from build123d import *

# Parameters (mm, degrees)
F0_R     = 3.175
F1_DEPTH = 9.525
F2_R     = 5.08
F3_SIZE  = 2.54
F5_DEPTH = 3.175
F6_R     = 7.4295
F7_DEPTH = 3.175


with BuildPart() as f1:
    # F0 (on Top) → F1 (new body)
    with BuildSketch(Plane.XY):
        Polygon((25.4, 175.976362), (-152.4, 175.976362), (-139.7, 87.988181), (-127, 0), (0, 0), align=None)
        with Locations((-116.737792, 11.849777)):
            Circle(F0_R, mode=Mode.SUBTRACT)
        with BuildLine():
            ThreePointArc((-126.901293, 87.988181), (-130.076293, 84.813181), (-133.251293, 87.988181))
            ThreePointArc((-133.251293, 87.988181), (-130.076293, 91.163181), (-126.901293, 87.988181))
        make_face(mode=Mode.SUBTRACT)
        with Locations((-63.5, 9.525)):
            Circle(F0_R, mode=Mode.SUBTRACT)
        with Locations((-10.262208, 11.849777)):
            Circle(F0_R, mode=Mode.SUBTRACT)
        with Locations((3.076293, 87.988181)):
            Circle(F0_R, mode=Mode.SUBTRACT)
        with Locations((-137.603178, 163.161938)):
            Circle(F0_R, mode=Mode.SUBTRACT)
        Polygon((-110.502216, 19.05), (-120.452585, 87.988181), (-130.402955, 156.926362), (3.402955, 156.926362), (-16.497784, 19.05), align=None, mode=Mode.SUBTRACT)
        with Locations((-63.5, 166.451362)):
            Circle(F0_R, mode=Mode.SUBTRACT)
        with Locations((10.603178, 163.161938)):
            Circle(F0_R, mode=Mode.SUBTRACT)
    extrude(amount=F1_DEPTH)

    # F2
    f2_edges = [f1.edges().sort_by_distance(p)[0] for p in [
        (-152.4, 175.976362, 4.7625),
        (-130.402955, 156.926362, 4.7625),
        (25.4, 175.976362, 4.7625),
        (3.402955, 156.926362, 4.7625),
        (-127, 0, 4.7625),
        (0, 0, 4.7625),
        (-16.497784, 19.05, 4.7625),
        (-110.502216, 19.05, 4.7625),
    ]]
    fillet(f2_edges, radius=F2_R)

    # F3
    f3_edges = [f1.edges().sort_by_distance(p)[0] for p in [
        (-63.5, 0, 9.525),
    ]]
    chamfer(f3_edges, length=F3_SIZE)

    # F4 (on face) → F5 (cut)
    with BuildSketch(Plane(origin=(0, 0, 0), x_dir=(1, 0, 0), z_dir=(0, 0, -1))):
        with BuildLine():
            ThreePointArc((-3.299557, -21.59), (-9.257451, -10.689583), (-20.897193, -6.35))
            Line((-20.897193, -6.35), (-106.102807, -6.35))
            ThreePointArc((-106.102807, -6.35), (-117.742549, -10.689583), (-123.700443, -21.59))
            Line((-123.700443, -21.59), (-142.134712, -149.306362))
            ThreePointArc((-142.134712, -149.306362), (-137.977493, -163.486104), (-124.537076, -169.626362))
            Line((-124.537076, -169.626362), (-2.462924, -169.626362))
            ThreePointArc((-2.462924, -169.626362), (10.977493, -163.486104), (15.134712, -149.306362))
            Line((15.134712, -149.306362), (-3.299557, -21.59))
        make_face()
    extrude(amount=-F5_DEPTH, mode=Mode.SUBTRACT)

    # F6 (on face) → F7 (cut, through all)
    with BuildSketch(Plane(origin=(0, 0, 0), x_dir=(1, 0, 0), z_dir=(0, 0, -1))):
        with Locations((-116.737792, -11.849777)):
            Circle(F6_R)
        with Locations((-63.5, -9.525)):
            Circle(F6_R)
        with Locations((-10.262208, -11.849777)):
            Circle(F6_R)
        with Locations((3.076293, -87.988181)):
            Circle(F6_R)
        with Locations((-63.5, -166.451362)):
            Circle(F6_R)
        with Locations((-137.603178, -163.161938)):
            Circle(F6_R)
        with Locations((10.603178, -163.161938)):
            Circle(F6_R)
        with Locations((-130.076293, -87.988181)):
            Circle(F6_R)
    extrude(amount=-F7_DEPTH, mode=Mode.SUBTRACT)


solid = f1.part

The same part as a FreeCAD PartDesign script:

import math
import FreeCAD as App
import Part
import Sketcher
from FreeCAD import Vector
Q = App.Units.Quantity


def edges_at(feature, points):
    """Names of the edges that pass closest to the given points."""
    edges = feature.Shape.Edges
    near = lambda p: min(range(len(edges)), key=lambda i: edges[i].distToShape(Part.Vertex(*p))[0])
    return sorted({f"Edge{near(p) + 1}" for p in points})


def add_polygon(sketch, points):
    """Adds a closed chain of lines whose ends are joined by coincident constraints."""
    first, n = sketch.GeometryCount, len(points)
    for a, b in zip(points, points[1:] + points[:1]):
        sketch.addGeometry(Part.LineSegment(App.Vector(*a, 0), App.Vector(*b, 0)), False)
    for i in range(n):
        sketch.addConstraint(Sketcher.Constraint("Coincident", first + i, 2, first + (i + 1) % n, 1))

doc = App.newDocument("Part")
body = doc.addObject("PartDesign::Body", "Body")

sketch1 = body.newObject("Sketcher::SketchObject", "Sketch")
sketch1.AttachmentSupport = (doc.getObject("XY_Plane"), [""])
sketch1.MapMode = "FlatFace"
add_polygon(sketch1, [(25.4, 176), (-152.4, 176), (-127, 0), (0, 0)])
sketch1.addGeometry(Part.Circle(Vector(-116.7, 11.8, 0), Vector(0, 0, 1), 3.2), False)
sketch1.addGeometry(Part.Circle(Vector(-63.5, 9.5, 0), Vector(0, 0, 1), 3.2), False)
sketch1.addGeometry(Part.Circle(Vector(-10.3, 11.8, 0), Vector(0, 0, 1), 3.2), False)
sketch1.addGeometry(Part.Circle(Vector(-130.1, 88, 0), Vector(0, 0, 1), 3.2), False)
sketch1.addGeometry(Part.Circle(Vector(-137.6, 163.2, 0), Vector(0, 0, 1), 3.2), False)
add_polygon(sketch1, [(-16.5, 19.1), (-110.5, 19.1), (-120.5, 88), (-130.4, 156.9), (3.4, 156.9)])
sketch1.addGeometry(Part.Circle(Vector(3.1, 88, 0), Vector(0, 0, 1), 3.2), False)
sketch1.addGeometry(Part.Circle(Vector(-63.5, 166.5, 0), Vector(0, 0, 1), 3.2), False)
sketch1.addGeometry(Part.Circle(Vector(10.6, 163.2, 0), Vector(0, 0, 1), 3.2), False)
sketch1.addConstraint(Sketcher.Constraint("Horizontal", 0))
sketch1.addConstraint(Sketcher.Constraint("Horizontal", 2))
sketch1.addConstraint(Sketcher.Constraint("Horizontal", 9))
sketch1.addConstraint(Sketcher.Constraint("Horizontal", 12))
sketch1.addConstraint(Sketcher.Constraint("Coincident", 2, 2, -1, 1))
sketch1.addConstraint(Sketcher.Constraint("Equal", 4, 5))
sketch1.addConstraint(Sketcher.Constraint("Equal", 5, 6))
sketch1.addConstraint(Sketcher.Constraint("Equal", 6, 7))
sketch1.addConstraint(Sketcher.Constraint("Equal", 7, 8))
sketch1.addConstraint(Sketcher.Constraint("Equal", 8, 14))
sketch1.addConstraint(Sketcher.Constraint("Equal", 14, 15))
sketch1.addConstraint(Sketcher.Constraint("Equal", 15, 16))
sketch1.addConstraint(Sketcher.Constraint("Parallel", 1, 10))
sketch1.addConstraint(Sketcher.Constraint("Parallel", 10, 11))
sketch1.addConstraint(Sketcher.Constraint("Parallel", 3, 13))
sketch1.addConstraint(Sketcher.Constraint("Horizontal", 4, 3, 6, 3))
sketch1.addConstraint(Sketcher.Constraint("Horizontal", 7, 3, 14, 3))
sketch1.addConstraint(Sketcher.Constraint("Horizontal", 8, 3, 16, 3))
sketch1.addConstraint(Sketcher.Constraint("Horizontal", 14, 3, 10, 2))
sketch1.addConstraint(Sketcher.Constraint("Vertical", 5, 3, 15, 3))
sketch1.addConstraint(Sketcher.Constraint("Equal", 1, 3))
sketch1.addConstraint(Sketcher.Constraint("Equal", 10, 11))
sketch1.addConstraint(Sketcher.Constraint("Diameter", 4, Q("0.25 in")))
sketch1.addConstraint(Sketcher.Constraint("DistanceX", 0, 2, 0, 1, Q("7 in")))
sketch1.addConstraint(Sketcher.Constraint("DistanceX", 2, 1, 2, 2, Q("5 in")))
sketch1.addConstraint(Sketcher.Constraint("Distance", 1, Q("7 in")))
sketch1.addConstraint(Sketcher.Constraint("DistanceX", 5, 3, -1, 1, Q("2.5 in")))
sketch1.addConstraint(Sketcher.Constraint("DistanceY", -1, 1, 9, 2, Q("0.75 in")))
sketch1.addConstraint(Sketcher.Constraint("DistanceY", 11, 2, 0, 2, Q("0.75 in")))
sketch1.addConstraint(Sketcher.Constraint("DistanceY", -1, 1, 5, 3, Q("0.375 in")))
sketch1.addConstraint(Sketcher.Constraint("DistanceY", 15, 3, 0, 2, Q("0.375 in")))
sketch1.addConstraint(Sketcher.Constraint("DistanceX", 12, 1, 12, 2, 133.80591))
sketch1.addConstraint(Sketcher.Constraint("DistanceX", 7, 3, 4, 3, 13.338501))
sketch1.addConstraint(Sketcher.Constraint("DistanceX", 6, 3, 14, 3, 13.338501))
sketch1.addConstraint(Sketcher.Constraint("DistanceX", 4, 3, -1, 1, 116.737792))
sketch1.addConstraint(Sketcher.Constraint("DistanceX", 8, 3, -1, 1, 137.603178))
sketch1.addConstraint(Sketcher.Constraint("DistanceY", -1, 1, 8, 3, 163.161938))
sketch1.addConstraint(Sketcher.Constraint("DistanceY", 4, 3, 8, 3, 151.312161))
sketch1.addConstraint(Sketcher.Constraint("DistanceX", 8, 3, 6, 3, 127.34097))
sketch1.addConstraint(Sketcher.Constraint("DistanceX", 15, 3, 16, 3, 74.103178))
sketch1.addConstraint(Sketcher.Constraint("DistanceX", 9, 2, 6, 3, 100.240008))
pad1 = body.newObject("PartDesign::Pad", "Pad")
pad1.Profile = sketch1
pad1.Length = Q("0.375 in")
doc.recompute()

fillet = body.newObject("PartDesign::Fillet", "Fillet")
fillet.Base = (pad1, edges_at(pad1, [
    (-152.4, 175.976, 4.763),
    (-130.403, 156.926, 4.763),
    (25.4, 175.976, 4.763),
    (3.403, 156.926, 4.763),
    (-127, 0, 4.763),
    (0, 0, 4.763),
    (-16.498, 19.05, 4.763),
    (-110.502, 19.05, 4.763),
]))
fillet.Radius = Q("0.2 in")
doc.recompute()

chamfer = body.newObject("PartDesign::Chamfer", "Chamfer")
chamfer.Base = (fillet, edges_at(fillet, [(-63.5, 0, 9.525)]))
chamfer.Size = Q("0.1 in")

sketch2 = body.newObject("Sketcher::SketchObject", "Sketch001")
sketch2.AttachmentSupport = (doc.getObject("XY_Plane"), [""])
sketch2.MapMode = "FlatFace"
sketch2.addGeometry(Part.ArcOfCircle(Part.Circle(Vector(-21, 24, 0), Vector(0, 0, 1), 18), math.radians(-90), math.radians(-8)), False)
sketch2.addGeometry(Part.LineSegment(Vector(-21, 6, 0), Vector(-106, 6, 0)), False)
sketch2.addGeometry(Part.ArcOfCircle(Part.Circle(Vector(-106, 24, 0), Vector(0, 0, 1), 18), math.radians(-172), math.radians(-90)), False)
sketch2.addGeometry(Part.LineSegment(Vector(-124, 22, 0), Vector(-142, 149, 0)), False)
sketch2.addGeometry(Part.ArcOfCircle(Part.Circle(Vector(-125, 152, 0), Vector(0, 0, 1), 18), math.radians(90), math.radians(188)), False)
sketch2.addGeometry(Part.LineSegment(Vector(-125, 170, 0), Vector(-2, 170, 0)), False)
sketch2.addGeometry(Part.ArcOfCircle(Part.Circle(Vector(-2, 152, 0), Vector(0, 0, 1), 18), math.radians(-8), math.radians(90)), False)
sketch2.addGeometry(Part.LineSegment(Vector(15, 149, 0), Vector(-3, 22, 0)), False)
sketch2.addConstraint(Sketcher.Constraint("Tangent", 0, 1, 1, 1))
sketch2.addConstraint(Sketcher.Constraint("Tangent", 1, 2, 2, 2))
sketch2.addConstraint(Sketcher.Constraint("Tangent", 2, 1, 3, 1))
sketch2.addConstraint(Sketcher.Constraint("Tangent", 3, 2, 4, 2))
sketch2.addConstraint(Sketcher.Constraint("Tangent", 4, 1, 5, 1))
sketch2.addConstraint(Sketcher.Constraint("Tangent", 5, 2, 6, 2))
sketch2.addConstraint(Sketcher.Constraint("Tangent", 6, 1, 7, 1))
sketch2.addConstraint(Sketcher.Constraint("Tangent", 7, 2, 0, 2))
sketch2.addConstraint(Sketcher.Constraint("Horizontal", 1))
sketch2.addConstraint(Sketcher.Constraint("Horizontal", 5))
sketch2.addConstraint(Sketcher.Constraint("Equal", 0, 2))
sketch2.addConstraint(Sketcher.Constraint("Equal", 2, 4))
sketch2.addConstraint(Sketcher.Constraint("Equal", 4, 6))
sketch2.addConstraint(Sketcher.Constraint("Horizontal", 3, 2, 6, 1))
sketch2.addConstraint(Sketcher.Constraint("Radius", 0, Q("0.7 in")))
sketch2.addConstraint(Sketcher.Constraint("DistanceY", 2, 1, 2, 3, Q("0.1 in")))
sketch2.addConstraint(Sketcher.Constraint("DistanceY", -1, 1, 0, 3, Q("0.95 in")))
sketch2.addConstraint(Sketcher.Constraint("DistanceX", 5, 1, 5, 2, 122.074152))
sketch2.addConstraint(Sketcher.Constraint("DistanceX", 1, 2, 1, 1, 85.205614))
sketch2.addConstraint(Sketcher.Constraint("DistanceX", 3, 2, -1, 1, 142.134712))
pocket1 = body.newObject("PartDesign::Pocket", "Pocket")
pocket1.Profile = sketch2
pocket1.Length = Q("0.125 in")
pocket1.Reversed = True

sketch3 = body.newObject("Sketcher::SketchObject", "Sketch002")
sketch3.AttachmentSupport = (doc.getObject("XY_Plane"), [""])
sketch3.MapMode = "FlatFace"
sketch3.addGeometry(Part.Circle(Vector(-117, 12, 0), Vector(0, 0, 1), 7), False)
sketch3.addGeometry(Part.Circle(Vector(-64, 10, 0), Vector(0, 0, 1), 7), False)
sketch3.addGeometry(Part.Circle(Vector(-10, 12, 0), Vector(0, 0, 1), 7), False)
sketch3.addGeometry(Part.Circle(Vector(3, 88, 0), Vector(0, 0, 1), 7), False)
sketch3.addGeometry(Part.Circle(Vector(-64, 166, 0), Vector(0, 0, 1), 7), False)
sketch3.addGeometry(Part.Circle(Vector(-138, 163, 0), Vector(0, 0, 1), 7), False)
sketch3.addGeometry(Part.Circle(Vector(11, 163, 0), Vector(0, 0, 1), 7), False)
sketch3.addGeometry(Part.Circle(Vector(-130, 88, 0), Vector(0, 0, 1), 7), False)
sketch3.addConstraint(Sketcher.Constraint("Equal", 0, 1))
sketch3.addConstraint(Sketcher.Constraint("Equal", 1, 2))
sketch3.addConstraint(Sketcher.Constraint("Equal", 2, 3))
sketch3.addConstraint(Sketcher.Constraint("Equal", 3, 4))
sketch3.addConstraint(Sketcher.Constraint("Equal", 4, 5))
sketch3.addConstraint(Sketcher.Constraint("Equal", 5, 6))
sketch3.addConstraint(Sketcher.Constraint("Equal", 6, 7))
sketch3.addConstraint(Sketcher.Constraint("Horizontal", 0, 3, 2, 3))
sketch3.addConstraint(Sketcher.Constraint("Horizontal", 5, 3, 6, 3))
sketch3.addConstraint(Sketcher.Constraint("Horizontal", 3, 3, 7, 3))
sketch3.addConstraint(Sketcher.Constraint("Vertical", 1, 3, 4, 3))
sketch3.addConstraint(Sketcher.Constraint("Diameter", 0, Q("0.585 in")))
sketch3.addConstraint(Sketcher.Constraint("DistanceX", 1, 3, -1, 1, Q("2.5 in")))
sketch3.addConstraint(Sketcher.Constraint("DistanceY", -1, 1, 1, 3, Q("0.375 in")))
sketch3.addConstraint(Sketcher.Constraint("DistanceX", 2, 3, 3, 3, 13.338501))
sketch3.addConstraint(Sketcher.Constraint("DistanceX", 7, 3, 0, 3, 13.338501))
sketch3.addConstraint(Sketcher.Constraint("DistanceX", 0, 3, -1, 1, 116.737792))
sketch3.addConstraint(Sketcher.Constraint("DistanceY", -1, 1, 3, 3, 87.988181))
sketch3.addConstraint(Sketcher.Constraint("DistanceY", -1, 1, 4, 3, 166.451362))
sketch3.addConstraint(Sketcher.Constraint("DistanceX", 5, 3, -1, 1, 137.603178))
sketch3.addConstraint(Sketcher.Constraint("DistanceY", -1, 1, 5, 3, 163.161938))
sketch3.addConstraint(Sketcher.Constraint("DistanceY", 0, 3, 5, 3, 151.312161))
sketch3.addConstraint(Sketcher.Constraint("DistanceX", 5, 3, 3, 3, 140.679471))
sketch3.addConstraint(Sketcher.Constraint("DistanceX", 4, 3, 6, 3, 74.103178))
pocket2 = body.newObject("PartDesign::Pocket", "Pocket001")
pocket2.Profile = sketch3
pocket2.Length = Q("0.125 in")
pocket2.Reversed = True

doc.recompute()
